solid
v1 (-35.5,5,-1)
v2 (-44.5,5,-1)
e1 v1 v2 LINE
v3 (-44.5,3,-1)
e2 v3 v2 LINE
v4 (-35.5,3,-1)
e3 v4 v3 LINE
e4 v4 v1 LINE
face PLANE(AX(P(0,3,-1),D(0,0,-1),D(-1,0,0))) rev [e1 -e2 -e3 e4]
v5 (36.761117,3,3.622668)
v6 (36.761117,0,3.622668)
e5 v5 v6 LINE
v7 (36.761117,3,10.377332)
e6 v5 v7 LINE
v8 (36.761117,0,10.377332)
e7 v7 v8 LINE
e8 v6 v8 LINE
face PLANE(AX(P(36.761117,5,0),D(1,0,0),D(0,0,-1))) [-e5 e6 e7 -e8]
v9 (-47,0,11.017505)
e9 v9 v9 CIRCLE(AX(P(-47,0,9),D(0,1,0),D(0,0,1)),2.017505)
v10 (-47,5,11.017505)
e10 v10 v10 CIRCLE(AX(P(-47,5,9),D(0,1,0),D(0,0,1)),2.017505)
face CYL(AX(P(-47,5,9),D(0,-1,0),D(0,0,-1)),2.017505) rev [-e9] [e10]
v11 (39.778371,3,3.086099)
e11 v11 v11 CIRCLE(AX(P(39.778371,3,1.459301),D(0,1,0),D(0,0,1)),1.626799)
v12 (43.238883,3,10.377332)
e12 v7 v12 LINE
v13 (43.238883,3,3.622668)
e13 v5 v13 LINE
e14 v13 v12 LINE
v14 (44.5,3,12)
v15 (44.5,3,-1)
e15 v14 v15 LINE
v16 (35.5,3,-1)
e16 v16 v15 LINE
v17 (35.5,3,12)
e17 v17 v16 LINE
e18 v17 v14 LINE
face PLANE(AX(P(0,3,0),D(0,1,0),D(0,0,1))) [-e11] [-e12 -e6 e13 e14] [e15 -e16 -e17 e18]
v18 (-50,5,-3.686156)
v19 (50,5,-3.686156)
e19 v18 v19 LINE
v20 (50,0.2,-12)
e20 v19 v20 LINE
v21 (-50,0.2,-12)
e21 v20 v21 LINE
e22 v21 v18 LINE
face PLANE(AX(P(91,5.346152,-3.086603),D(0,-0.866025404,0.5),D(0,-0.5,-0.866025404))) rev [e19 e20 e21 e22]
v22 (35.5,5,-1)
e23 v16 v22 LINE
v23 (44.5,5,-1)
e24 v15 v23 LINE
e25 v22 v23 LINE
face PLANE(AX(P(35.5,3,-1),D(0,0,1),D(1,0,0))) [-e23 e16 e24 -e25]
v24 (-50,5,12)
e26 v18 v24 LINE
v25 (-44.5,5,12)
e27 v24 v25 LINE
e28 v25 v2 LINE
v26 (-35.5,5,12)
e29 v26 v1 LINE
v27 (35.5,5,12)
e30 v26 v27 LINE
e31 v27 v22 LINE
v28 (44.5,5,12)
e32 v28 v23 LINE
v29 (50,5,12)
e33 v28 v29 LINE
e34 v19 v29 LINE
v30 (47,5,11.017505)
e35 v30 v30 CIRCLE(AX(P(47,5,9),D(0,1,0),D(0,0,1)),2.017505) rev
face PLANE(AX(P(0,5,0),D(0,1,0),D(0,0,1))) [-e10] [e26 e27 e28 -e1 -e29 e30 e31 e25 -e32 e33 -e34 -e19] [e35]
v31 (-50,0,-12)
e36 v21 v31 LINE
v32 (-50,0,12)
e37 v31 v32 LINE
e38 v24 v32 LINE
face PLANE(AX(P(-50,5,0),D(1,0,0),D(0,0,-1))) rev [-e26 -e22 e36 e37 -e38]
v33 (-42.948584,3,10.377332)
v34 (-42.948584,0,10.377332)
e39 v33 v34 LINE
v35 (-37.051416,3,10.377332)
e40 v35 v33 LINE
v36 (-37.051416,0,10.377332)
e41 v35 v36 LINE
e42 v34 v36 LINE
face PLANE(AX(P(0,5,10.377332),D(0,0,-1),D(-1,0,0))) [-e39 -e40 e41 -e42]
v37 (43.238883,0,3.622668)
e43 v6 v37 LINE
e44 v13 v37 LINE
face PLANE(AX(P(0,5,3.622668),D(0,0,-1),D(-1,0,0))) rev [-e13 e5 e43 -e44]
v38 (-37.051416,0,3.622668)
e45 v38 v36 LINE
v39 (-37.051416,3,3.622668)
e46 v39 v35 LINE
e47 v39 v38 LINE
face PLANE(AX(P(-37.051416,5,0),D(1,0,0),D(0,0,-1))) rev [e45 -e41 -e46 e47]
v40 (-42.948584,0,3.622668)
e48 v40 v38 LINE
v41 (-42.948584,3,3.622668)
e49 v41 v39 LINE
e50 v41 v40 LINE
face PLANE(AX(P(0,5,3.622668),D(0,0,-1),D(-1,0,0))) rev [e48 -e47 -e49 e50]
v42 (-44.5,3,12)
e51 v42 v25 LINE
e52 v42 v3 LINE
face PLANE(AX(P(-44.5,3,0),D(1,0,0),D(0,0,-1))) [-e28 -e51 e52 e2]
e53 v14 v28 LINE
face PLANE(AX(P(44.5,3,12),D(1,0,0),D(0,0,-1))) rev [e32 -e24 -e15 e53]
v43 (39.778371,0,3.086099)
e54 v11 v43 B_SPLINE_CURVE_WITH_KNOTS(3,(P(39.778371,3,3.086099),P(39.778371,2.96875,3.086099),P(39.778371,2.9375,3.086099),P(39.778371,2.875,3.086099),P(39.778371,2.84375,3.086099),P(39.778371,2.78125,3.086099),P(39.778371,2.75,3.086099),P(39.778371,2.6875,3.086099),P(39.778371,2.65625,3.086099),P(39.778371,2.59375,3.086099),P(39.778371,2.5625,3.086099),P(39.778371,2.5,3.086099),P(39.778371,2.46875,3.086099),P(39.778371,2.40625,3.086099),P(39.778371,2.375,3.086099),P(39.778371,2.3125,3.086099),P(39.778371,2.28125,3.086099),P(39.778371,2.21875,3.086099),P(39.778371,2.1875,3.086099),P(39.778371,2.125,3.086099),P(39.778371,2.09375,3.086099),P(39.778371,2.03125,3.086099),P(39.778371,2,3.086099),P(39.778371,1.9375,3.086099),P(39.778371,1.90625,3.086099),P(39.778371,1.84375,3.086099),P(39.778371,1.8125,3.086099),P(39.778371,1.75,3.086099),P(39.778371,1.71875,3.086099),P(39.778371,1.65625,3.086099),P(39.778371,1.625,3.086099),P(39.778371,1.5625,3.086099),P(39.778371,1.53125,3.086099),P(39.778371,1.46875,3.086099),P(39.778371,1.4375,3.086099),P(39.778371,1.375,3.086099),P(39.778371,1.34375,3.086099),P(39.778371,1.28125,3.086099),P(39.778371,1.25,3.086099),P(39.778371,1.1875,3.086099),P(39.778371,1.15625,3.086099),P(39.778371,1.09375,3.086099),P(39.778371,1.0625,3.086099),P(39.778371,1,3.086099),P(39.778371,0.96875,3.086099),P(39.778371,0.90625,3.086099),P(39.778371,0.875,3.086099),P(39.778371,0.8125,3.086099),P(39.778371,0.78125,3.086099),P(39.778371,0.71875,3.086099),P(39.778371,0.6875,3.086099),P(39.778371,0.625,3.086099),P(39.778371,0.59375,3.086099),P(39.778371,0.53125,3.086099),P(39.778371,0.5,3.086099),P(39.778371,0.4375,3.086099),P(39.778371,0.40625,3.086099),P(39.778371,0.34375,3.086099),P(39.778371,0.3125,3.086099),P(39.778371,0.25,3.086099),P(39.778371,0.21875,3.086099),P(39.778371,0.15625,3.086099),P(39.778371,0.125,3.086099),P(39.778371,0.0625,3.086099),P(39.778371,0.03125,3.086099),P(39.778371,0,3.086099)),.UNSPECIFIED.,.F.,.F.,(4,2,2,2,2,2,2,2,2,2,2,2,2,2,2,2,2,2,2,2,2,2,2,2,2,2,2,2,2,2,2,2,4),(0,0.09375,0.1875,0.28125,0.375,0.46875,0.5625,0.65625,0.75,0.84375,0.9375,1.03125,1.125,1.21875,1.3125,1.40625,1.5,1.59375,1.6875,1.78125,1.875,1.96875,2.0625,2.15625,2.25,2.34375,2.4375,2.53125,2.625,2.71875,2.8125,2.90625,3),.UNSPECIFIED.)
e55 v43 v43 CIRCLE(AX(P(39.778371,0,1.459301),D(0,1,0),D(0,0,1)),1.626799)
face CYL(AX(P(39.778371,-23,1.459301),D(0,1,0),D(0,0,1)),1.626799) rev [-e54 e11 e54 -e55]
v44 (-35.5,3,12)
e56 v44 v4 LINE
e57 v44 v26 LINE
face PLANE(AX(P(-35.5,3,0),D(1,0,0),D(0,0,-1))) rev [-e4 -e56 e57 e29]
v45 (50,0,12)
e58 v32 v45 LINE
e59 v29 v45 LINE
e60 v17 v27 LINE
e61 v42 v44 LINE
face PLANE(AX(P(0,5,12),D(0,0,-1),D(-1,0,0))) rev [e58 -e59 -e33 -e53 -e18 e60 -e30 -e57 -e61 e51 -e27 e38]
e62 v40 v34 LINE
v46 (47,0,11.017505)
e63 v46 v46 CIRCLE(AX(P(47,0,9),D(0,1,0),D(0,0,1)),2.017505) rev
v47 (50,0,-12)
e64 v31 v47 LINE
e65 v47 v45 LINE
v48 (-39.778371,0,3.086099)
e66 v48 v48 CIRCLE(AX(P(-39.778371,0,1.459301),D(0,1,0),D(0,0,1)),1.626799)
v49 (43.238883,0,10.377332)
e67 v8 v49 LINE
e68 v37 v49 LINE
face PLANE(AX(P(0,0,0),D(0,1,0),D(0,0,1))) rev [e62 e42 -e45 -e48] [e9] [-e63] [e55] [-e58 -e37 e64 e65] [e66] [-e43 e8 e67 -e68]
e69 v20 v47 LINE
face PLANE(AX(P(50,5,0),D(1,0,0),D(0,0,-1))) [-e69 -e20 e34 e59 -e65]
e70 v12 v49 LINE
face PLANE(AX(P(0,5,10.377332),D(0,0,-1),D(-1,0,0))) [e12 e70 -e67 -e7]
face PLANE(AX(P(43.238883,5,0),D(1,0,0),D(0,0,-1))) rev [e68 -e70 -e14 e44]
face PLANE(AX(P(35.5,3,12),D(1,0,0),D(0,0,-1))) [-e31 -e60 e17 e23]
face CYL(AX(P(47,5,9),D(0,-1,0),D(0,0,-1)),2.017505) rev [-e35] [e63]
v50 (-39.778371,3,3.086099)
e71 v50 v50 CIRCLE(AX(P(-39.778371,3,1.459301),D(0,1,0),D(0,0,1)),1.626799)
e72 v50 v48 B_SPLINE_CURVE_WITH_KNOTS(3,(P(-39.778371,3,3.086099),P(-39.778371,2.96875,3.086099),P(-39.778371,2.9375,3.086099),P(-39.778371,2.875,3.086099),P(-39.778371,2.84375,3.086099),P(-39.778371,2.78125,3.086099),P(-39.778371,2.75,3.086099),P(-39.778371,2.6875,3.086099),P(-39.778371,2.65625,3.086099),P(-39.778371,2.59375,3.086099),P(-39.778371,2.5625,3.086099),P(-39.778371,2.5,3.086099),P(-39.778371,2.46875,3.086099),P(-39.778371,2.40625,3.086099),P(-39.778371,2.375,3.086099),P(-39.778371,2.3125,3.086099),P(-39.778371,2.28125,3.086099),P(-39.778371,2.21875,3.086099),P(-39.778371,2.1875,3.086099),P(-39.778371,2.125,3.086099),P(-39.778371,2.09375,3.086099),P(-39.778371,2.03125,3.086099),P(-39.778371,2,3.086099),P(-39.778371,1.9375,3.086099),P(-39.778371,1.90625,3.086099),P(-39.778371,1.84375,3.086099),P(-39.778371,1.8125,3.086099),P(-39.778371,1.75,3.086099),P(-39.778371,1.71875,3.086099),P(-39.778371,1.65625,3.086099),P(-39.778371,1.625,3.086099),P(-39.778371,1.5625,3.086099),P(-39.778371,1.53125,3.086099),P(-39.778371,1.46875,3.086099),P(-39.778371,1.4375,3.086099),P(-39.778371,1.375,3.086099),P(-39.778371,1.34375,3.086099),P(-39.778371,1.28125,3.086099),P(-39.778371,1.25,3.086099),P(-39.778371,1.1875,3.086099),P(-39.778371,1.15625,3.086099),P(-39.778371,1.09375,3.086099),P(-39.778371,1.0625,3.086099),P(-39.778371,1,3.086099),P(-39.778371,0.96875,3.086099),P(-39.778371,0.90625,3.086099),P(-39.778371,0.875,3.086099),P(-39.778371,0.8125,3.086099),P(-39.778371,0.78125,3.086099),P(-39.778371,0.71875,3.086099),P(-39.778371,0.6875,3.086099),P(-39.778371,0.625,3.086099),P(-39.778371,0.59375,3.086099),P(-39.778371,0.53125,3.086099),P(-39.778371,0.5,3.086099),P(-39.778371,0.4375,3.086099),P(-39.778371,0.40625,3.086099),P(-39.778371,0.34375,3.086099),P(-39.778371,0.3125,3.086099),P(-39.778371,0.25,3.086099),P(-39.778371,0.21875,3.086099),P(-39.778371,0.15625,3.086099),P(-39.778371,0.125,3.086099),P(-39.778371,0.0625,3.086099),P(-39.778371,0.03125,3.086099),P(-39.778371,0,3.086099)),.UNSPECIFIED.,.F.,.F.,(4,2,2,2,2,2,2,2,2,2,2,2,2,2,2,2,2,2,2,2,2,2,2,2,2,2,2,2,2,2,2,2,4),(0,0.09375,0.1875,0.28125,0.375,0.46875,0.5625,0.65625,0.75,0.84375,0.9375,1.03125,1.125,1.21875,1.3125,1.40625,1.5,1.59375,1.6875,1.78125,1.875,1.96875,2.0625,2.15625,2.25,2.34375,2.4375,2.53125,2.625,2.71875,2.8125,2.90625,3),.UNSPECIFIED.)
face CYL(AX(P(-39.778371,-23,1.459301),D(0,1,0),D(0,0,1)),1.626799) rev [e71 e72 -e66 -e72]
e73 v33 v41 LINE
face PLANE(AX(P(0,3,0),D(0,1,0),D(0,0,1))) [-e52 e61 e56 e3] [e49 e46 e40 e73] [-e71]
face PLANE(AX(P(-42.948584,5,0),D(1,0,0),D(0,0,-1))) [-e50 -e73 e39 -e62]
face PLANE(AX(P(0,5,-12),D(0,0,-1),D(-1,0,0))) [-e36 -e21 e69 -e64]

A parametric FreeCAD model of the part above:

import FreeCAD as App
import Part
import Sketcher

V = App.Vector
Q = App.Units.Quantity


def add_polygon(sketch, points):
    """Adds a closed chain of lines whose ends are joined by coincident constraints."""
    first, n = sketch.GeometryCount, len(points)
    for a, b in zip(points, points[1:] + points[:1]):
        sketch.addGeometry(Part.LineSegment(App.Vector(*a, 0), App.Vector(*b, 0)), False)
    for i in range(n):
        sketch.addConstraint(Sketcher.Constraint("Coincident", first + i, 2, first + (i + 1) % n, 1))

doc = App.newDocument("Part")
body = doc.addObject("PartDesign::Body", "Body")

sketch1 = doc.addObject("Sketcher::SketchObject", "Sketch")
body.addObject(sketch1)
sketch1.AttachmentSupport = (doc.XZ_Plane, [""])
sketch1.MapMode = "FlatFace"
add_polygon(sketch1, [(-50, -12), (-50, 12), (50, 12), (50, -12)])
sketch1.addGeometry(Part.Circle(V(-47, 9, 0), V(0, 0, 1), 2), False)
sketch1.addGeometry(Part.Circle(V(47, 9, 0), V(0, 0, 1), 2), False)
add_polygon(sketch1, [(-37.1, 10.4), (-42.9, 10.4), (-42.9, 3.6), (-37.1, 3.6)])
add_polygon(sketch1, [(43.2, 10.4), (36.8, 10.4), (36.8, 3.6), (43.2, 3.6)])
sketch1.addConstraint(Sketcher.Constraint("Vertical", 0))
sketch1.addConstraint(Sketcher.Constraint("Horizontal", 1))
sketch1.addConstraint(Sketcher.Constraint("Vertical", 2))
sketch1.addConstraint(Sketcher.Constraint("Horizontal", 3))
sketch1.addConstraint(Sketcher.Constraint("Horizontal", 6))
sketch1.addConstraint(Sketcher.Constraint("Vertical", 7))
sketch1.addConstraint(Sketcher.Constraint("Horizontal", 8))
sketch1.addConstraint(Sketcher.Constraint("Vertical", 9))
sketch1.addConstraint(Sketcher.Constraint("Horizontal", 10))
sketch1.addConstraint(Sketcher.Constraint("Vertical", 11))
sketch1.addConstraint(Sketcher.Constraint("Horizontal", 12))
sketch1.addConstraint(Sketcher.Constraint("Vertical", 13))
sketch1.addConstraint(Sketcher.Constraint("Equal", 4, 5))
sketch1.addConstraint(Sketcher.Constraint("Symmetric", 0, 2, 2, 2, -1, 1))
sketch1.addConstraint(Sketcher.Constraint("Symmetric", 4, 3, 5, 3, -2))
sketch1.addConstraint(Sketcher.Constraint("Horizontal", 9, 2, 10, 2))
sketch1.addConstraint(Sketcher.Constraint("Horizontal", 8, 2, 11, 2))
sketch1.addConstraint(Sketcher.Constraint("DistanceX", 1, 1, 1, 2, Q("100 mm")))
sketch1.addConstraint(Sketcher.Constraint("DistanceY", 0, 1, 0, 2, Q("24 mm")))
sketch1.addConstraint(Sketcher.Constraint("DistanceX", 4, 3, -1, 1, Q("47 mm")))
sketch1.addConstraint(Sketcher.Constraint("DistanceY", -1, 1, 4, 3, Q("9 mm")))
sketch1.addConstraint(Sketcher.Constraint("Diameter", 4, Q("4.03501 mm")))
sketch1.addConstraint(Sketcher.Constraint("DistanceX", 6, 2, 6, 1, Q("5.897168 mm")))
sketch1.addConstraint(Sketcher.Constraint("DistanceX", 10, 2, 10, 1, Q("6.477766 mm")))
sketch1.addConstraint(Sketcher.Constraint("DistanceY", 7, 2, 7, 1, Q("6.754664 mm")))
sketch1.addConstraint(Sketcher.Constraint("DistanceY", -1, 1, 6, 2, Q("10.377332 mm")))
sketch1.addConstraint(Sketcher.Constraint("DistanceX", 6, 2, -1, 1, Q("42.948584 mm")))
sketch1.addConstraint(Sketcher.Constraint("DistanceX", -1, 1, 10, 2, Q("36.761117 mm")))
pad1 = doc.addObject("PartDesign::Pad", "Pad")
body.addObject(pad1)
pad1.Profile = sketch1
pad1.Length = 5
pad1.Reversed = True

sketch2 = doc.addObject("Sketcher::SketchObject", "Sketch001")
body.addObject(sketch2)
sketch2.AttachmentSupport = (doc.XZ_Plane, [""])
sketch2.MapMode = "FlatFace"
sketch2.AttachmentOffset = App.Placement(V(0, 0, -5), App.Rotation())
add_polygon(sketch2, [(-44.5, -1), (-44.5, 12), (-35.5, 12), (-35.5, -1)])
sketch2.addGeometry(Part.Circle(V(-40, 7, 0), V(0, 0, 1), 2.5), False)
add_polygon(sketch2, [(35.5, -1), (35.5, 12), (44.5, 12), (44.5, -1)])
sketch2.addGeometry(Part.Circle(V(40, 7, 0), V(0, 0, 1), 2.5), False)
sketch2.addConstraint(Sketcher.Constraint("Vertical", 0))
sketch2.addConstraint(Sketcher.Constraint("Horizontal", 1))
sketch2.addConstraint(Sketcher.Constraint("Vertical", 2))
sketch2.addConstraint(Sketcher.Constraint("Horizontal", 3))
sketch2.addConstraint(Sketcher.Constraint("Vertical", 5))
sketch2.addConstraint(Sketcher.Constraint("Horizontal", 6))
sketch2.addConstraint(Sketcher.Constraint("Vertical", 7))
sketch2.addConstraint(Sketcher.Constraint("Horizontal", 8))
sketch2.addConstraint(Sketcher.Constraint("Equal", 4, 9))
sketch2.addConstraint(Sketcher.Constraint("Symmetric", 4, 3, 9, 3, -2))
sketch2.addConstraint(Sketcher.Constraint("Symmetric", 1, 2, 5, 2, -2))
sketch2.addConstraint(Sketcher.Constraint("Symmetric", 3, 2, 7, 2, -2))
sketch2.addConstraint(Sketcher.Constraint("Diameter", 4, Q("5 mm")))
sketch2.addConstraint(Sketcher.Constraint("DistanceX", 1, 1, 1, 2, Q("9 mm")))
sketch2.addConstraint(Sketcher.Constraint("DistanceY", 0, 1, 0, 2, Q("13 mm")))
sketch2.addConstraint(Sketcher.Constraint("DistanceX", 4, 3, -1, 1, Q("40 mm")))
sketch2.addConstraint(Sketcher.Constraint("DistanceY", -1, 1, 4, 3, Q("7 mm")))
sketch2.addConstraint(Sketcher.Constraint("DistanceY", -1, 1, 0, 2, Q("12 mm")))
sketch2.addConstraint(Sketcher.Constraint("DistanceX", 1, 2, 5, 2, Q("71 mm")))
pocket1 = doc.addObject("PartDesign::Pocket", "Pocket")
body.addObject(pocket1)
pocket1.Profile = sketch2
pocket1.Length = 2
pocket1.Reversed = True

sketch3 = doc.addObject("Sketcher::SketchObject", "Sketch002")
body.addObject(sketch3)
sketch3.AttachmentSupport = (doc.YZ_Plane, [""])
sketch3.MapMode = "FlatFace"
sketch3.AttachmentOffset = App.Placement(V(0, 0, -50), App.Rotation())
add_polygon(sketch3, [(0.2, -12), (3.6, -6.1), (5, -3.7), (5.4, -3), (5.4, -12.8), (0.2, -12.8)])
sketch3.addConstraint(Sketcher.Constraint("Vertical", 3))
sketch3.addConstraint(Sketcher.Constraint("Horizontal", 4))
sketch3.addConstraint(Sketcher.Constraint("Vertical", 5))
sketch3.addConstraint(Sketcher.Constraint("Parallel", 0, 1))
sketch3.addConstraint(Sketcher.Constraint("Parallel", 1, 2))
sketch3.addConstraint(Sketcher.Constraint("Angle", 0, Q("60 deg")))
sketch3.addConstraint(Sketcher.Constraint("DistanceX", -1, 1, 1, 2, Q("5 mm")))
sketch3.addConstraint(Sketcher.Constraint("DistanceY", 5, 2, -1, 1, Q("12 mm")))
sketch3.addConstraint(Sketcher.Constraint("DistanceX", -1, 1, 4, 2, Q("0.2 mm")))
sketch3.addConstraint(Sketcher.Constraint("Distance", 0, Q("6.811699 mm")))
sketch3.addConstraint(Sketcher.Constraint("DistanceY", 5, 1, 5, 2, Q("0.757171 mm")))
sketch3.addConstraint(Sketcher.Constraint("DistanceX", 4, 2, 4, 1, Q("5.173143 mm")))
pocket2 = doc.addObject("PartDesign::Pocket", "Pocket001")
body.addObject(pocket2)
pocket2.Profile = sketch3
pocket2.Length = 141
pocket2.Reversed = True

sketch4 = doc.addObject("Sketcher::SketchObject", "Sketch003")
body.addObject(sketch4)
sketch4.AttachmentSupport = (doc.XZ_Plane, [""])
sketch4.MapMode = "FlatFace"
sketch4.AttachmentOffset = App.Placement(V(0, 0, -3), App.Rotation())
sketch4.addGeometry(Part.Circle(V(39.8, 1.5, 0), V(0, 0, 1), 1.6), False)
sketch4.addGeometry(Part.Circle(V(-39.8, 1.5, 0), V(0, 0, 1), 1.6), False)
sketch4.addConstraint(Sketcher.Constraint("Equal", 0, 1))
sketch4.addConstraint(Sketcher.Constraint("Symmetric", 0, 3, 1, 3, -2))
sketch4.addConstraint(Sketcher.Constraint("Diameter", 0, Q("3.253597 mm")))
sketch4.addConstraint(Sketcher.Constraint("DistanceY", -1, 1, 0, 3, Q("1.459301 mm")))
sketch4.addConstraint(Sketcher.Constraint("DistanceX", -1, 1, 0, 3, Q("39.778371 mm")))
pocket3 = doc.addObject("PartDesign::Pocket", "Pocket002")
body.addObject(pocket3)
pocket3.Profile = sketch4
pocket3.Type = "ThroughAll"
pocket3.Midplane = True

doc.recompute()
